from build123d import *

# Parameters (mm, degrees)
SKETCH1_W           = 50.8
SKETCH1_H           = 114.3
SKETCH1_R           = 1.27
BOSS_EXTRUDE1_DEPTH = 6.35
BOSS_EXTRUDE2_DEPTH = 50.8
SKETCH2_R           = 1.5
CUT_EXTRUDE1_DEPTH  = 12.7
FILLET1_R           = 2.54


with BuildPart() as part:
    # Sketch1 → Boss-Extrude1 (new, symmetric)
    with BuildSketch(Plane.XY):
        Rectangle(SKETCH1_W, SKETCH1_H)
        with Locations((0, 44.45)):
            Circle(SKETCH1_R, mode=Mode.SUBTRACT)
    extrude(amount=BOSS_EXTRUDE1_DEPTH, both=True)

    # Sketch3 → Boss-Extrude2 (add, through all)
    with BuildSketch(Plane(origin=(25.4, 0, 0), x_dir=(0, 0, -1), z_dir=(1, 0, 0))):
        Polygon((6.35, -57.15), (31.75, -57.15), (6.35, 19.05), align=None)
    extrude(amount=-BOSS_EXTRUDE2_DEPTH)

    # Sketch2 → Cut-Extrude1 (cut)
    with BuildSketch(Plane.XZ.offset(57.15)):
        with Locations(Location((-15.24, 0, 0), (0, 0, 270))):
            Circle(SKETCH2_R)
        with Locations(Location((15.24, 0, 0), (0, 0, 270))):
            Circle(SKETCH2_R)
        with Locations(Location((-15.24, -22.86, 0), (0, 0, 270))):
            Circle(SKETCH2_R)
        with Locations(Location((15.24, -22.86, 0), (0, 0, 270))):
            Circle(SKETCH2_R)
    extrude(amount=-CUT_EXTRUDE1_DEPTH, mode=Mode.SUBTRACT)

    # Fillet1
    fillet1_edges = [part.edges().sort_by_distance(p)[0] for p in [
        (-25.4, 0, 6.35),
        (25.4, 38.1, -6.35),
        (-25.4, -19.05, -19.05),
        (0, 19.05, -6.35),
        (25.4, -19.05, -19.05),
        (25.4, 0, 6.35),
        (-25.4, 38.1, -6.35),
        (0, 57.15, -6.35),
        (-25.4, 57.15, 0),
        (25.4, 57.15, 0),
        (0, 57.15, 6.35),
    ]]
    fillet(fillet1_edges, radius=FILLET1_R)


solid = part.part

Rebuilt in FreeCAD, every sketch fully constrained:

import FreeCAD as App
import Part
import Sketcher
from FreeCAD import Vector
Q = App.Units.Quantity


def edges_at(feature, points):
    """Names of the edges that pass closest to the given points."""
    edges = feature.Shape.Edges
    near = lambda p: min(range(len(edges)), key=lambda i: edges[i].distToShape(Part.Vertex(*p))[0])
    return sorted({f"Edge{near(p) + 1}" for p in points})


def add_polygon(sketch, points):
    """Adds a closed chain of lines whose ends are joined by coincident constraints."""
    first, n = sketch.GeometryCount, len(points)
    for a, b in zip(points, points[1:] + points[:1]):
        sketch.addGeometry(Part.LineSegment(App.Vector(*a, 0), App.Vector(*b, 0)), False)
    for i in range(n):
        sketch.addConstraint(Sketcher.Constraint("Coincident", first + i, 2, first + (i + 1) % n, 1))

doc = App.newDocument("Part")
body = doc.addObject("PartDesign::Body", "Body")

# Sketch on XY plane
sketch1 = body.newObject("Sketcher::SketchObject", "Sketch")
sketch1.AttachmentSupport = (doc.getObject("XY_Plane"), [""])
sketch1.MapMode = "FlatFace"
add_polygon(sketch1, [(-25.4, 57.1), (-25.4, -57.1), (25.4, -57.1), (25.4, 57.1)])  # lines 0-3
sketch1.addGeometry(Part.Circle(Vector(0, 44.5, 0), Vector(0, 0, 1), 1.3), False)  # 4
sketch1.addConstraint([
    Sketcher.Constraint("Vertical", 0),
    Sketcher.Constraint("Horizontal", 1),
    Sketcher.Constraint("Vertical", 2),
    Sketcher.Constraint("Horizontal", 3),
    Sketcher.Constraint("Symmetric", 0, 2, 2, 2, -1, 1),
    Sketcher.Constraint("PointOnObject", 4, 3, -2),
    Sketcher.Constraint("Diameter", 4, Q("0.1 in")),
    Sketcher.Constraint("DistanceX", 1, 1, 1, 2, Q("2 in")),
    Sketcher.Constraint("DistanceY", 0, 2, 0, 1, Q("4.5 in")),
    Sketcher.Constraint("DistanceY", 0, 2, 4, 3, Q("4 in")),
])
pad1 = body.newObject("PartDesign::Pad", "Pad")
pad1.Profile = sketch1
pad1.Length = Q("0.5 in")
pad1.Midplane = True

# Sketch on YZ plane
sketch2 = body.newObject("Sketcher::SketchObject", "Sketch001")
sketch2.AttachmentSupport = (doc.getObject("YZ_Plane"), [""])
sketch2.MapMode = "FlatFace"
sketch2.AttachmentOffset = App.Placement(Vector(0, 0, 1 * 25.4), App.Rotation())
add_polygon(sketch2, [(-57, -6), (-57, -32), (19, -6)])  # lines 0-2
sketch2.addConstraint([
    Sketcher.Constraint("Vertical", 0),
    Sketcher.Constraint("Horizontal", 2),
    Sketcher.Constraint("DistanceX", 2, 2, 2, 1, Q("3 in")),
    Sketcher.Constraint("DistanceY", 0, 2, 0, 1, Q("1 in")),
    Sketcher.Constraint("DistanceX", 0, 2, -1, 1, Q("2.25 in")),
    Sketcher.Constraint("DistanceY", 0, 2, -1, 1, Q("1.25 in")),
])
pad2 = body.newObject("PartDesign::Pad", "Pad001")
pad2.Profile = sketch2
pad2.Length = Q("2 in")
pad2.Reversed = True

# Sketch on XZ plane
sketch3 = body.newObject("Sketcher::SketchObject", "Sketch002")
sketch3.AttachmentSupport = (doc.getObject("XZ_Plane"), [""])
sketch3.MapMode = "FlatFace"
sketch3.AttachmentOffset = App.Placement(Vector(0, 0, 2.25 * 25.4), App.Rotation())
sketch3.addGeometry([
    Part.Circle(Vector(-15.2, 0, 0), Vector(0, 0, 1), 1.5),
    Part.Circle(Vector(15.2, 0, 0), Vector(0, 0, 1), 1.5),
    Part.Circle(Vector(-15.2, -22.9, 0), Vector(0, 0, 1), 1.5),
    Part.Circle(Vector(15.2, -22.9, 0), Vector(0, 0, 1), 1.5),
], False)
sketch3.addConstraint([
    Sketcher.Constraint("Equal", 0, 1),
    Sketcher.Constraint("Equal", 1, 2),
    Sketcher.Constraint("Equal", 2, 3),
    Sketcher.Constraint("Symmetric", 0, 3, 1, 3, -1, 1),
    Sketcher.Constraint("Symmetric", 2, 3, 3, 3, -2),
    Sketcher.Constraint("PointOnObject", 0, 3, -1),
    Sketcher.Constraint("Vertical", 0, 3, 2, 3),
    Sketcher.Constraint("DistanceX", 0, 3, -1, 1, Q("0.6 in")),
    Sketcher.Constraint("DistanceY", 2, 3, -1, 1, Q("0.9 in")),
    Sketcher.Constraint("Diameter", 0, Q("3 mm")),
])
pocket1 = body.newObject("PartDesign::Pocket", "Pocket")
pocket1.Profile = sketch3
pocket1.Length = Q("0.5 in")
doc.recompute()

fillet = body.newObject("PartDesign::Fillet", "Fillet")
fillet.Base = (pocket1, edges_at(pocket1, [
    (-25.4, 0, 6.35),
    (25.4, 38.1, -6.35),
    (-25.4, -19.05, -19.05),
    (0, 19.05, -6.35),
    (25.4, -19.05, -19.05),
    (25.4, 0, 6.35),
    (-25.4, 38.1, -6.35),
    (0, 57.15, -6.35),
    (-25.4, 57.15, 0),
    (25.4, 57.15, 0),
    (0, 57.15, 6.35),
]))
fillet.Radius = Q("0.1 in")

doc.recompute()
